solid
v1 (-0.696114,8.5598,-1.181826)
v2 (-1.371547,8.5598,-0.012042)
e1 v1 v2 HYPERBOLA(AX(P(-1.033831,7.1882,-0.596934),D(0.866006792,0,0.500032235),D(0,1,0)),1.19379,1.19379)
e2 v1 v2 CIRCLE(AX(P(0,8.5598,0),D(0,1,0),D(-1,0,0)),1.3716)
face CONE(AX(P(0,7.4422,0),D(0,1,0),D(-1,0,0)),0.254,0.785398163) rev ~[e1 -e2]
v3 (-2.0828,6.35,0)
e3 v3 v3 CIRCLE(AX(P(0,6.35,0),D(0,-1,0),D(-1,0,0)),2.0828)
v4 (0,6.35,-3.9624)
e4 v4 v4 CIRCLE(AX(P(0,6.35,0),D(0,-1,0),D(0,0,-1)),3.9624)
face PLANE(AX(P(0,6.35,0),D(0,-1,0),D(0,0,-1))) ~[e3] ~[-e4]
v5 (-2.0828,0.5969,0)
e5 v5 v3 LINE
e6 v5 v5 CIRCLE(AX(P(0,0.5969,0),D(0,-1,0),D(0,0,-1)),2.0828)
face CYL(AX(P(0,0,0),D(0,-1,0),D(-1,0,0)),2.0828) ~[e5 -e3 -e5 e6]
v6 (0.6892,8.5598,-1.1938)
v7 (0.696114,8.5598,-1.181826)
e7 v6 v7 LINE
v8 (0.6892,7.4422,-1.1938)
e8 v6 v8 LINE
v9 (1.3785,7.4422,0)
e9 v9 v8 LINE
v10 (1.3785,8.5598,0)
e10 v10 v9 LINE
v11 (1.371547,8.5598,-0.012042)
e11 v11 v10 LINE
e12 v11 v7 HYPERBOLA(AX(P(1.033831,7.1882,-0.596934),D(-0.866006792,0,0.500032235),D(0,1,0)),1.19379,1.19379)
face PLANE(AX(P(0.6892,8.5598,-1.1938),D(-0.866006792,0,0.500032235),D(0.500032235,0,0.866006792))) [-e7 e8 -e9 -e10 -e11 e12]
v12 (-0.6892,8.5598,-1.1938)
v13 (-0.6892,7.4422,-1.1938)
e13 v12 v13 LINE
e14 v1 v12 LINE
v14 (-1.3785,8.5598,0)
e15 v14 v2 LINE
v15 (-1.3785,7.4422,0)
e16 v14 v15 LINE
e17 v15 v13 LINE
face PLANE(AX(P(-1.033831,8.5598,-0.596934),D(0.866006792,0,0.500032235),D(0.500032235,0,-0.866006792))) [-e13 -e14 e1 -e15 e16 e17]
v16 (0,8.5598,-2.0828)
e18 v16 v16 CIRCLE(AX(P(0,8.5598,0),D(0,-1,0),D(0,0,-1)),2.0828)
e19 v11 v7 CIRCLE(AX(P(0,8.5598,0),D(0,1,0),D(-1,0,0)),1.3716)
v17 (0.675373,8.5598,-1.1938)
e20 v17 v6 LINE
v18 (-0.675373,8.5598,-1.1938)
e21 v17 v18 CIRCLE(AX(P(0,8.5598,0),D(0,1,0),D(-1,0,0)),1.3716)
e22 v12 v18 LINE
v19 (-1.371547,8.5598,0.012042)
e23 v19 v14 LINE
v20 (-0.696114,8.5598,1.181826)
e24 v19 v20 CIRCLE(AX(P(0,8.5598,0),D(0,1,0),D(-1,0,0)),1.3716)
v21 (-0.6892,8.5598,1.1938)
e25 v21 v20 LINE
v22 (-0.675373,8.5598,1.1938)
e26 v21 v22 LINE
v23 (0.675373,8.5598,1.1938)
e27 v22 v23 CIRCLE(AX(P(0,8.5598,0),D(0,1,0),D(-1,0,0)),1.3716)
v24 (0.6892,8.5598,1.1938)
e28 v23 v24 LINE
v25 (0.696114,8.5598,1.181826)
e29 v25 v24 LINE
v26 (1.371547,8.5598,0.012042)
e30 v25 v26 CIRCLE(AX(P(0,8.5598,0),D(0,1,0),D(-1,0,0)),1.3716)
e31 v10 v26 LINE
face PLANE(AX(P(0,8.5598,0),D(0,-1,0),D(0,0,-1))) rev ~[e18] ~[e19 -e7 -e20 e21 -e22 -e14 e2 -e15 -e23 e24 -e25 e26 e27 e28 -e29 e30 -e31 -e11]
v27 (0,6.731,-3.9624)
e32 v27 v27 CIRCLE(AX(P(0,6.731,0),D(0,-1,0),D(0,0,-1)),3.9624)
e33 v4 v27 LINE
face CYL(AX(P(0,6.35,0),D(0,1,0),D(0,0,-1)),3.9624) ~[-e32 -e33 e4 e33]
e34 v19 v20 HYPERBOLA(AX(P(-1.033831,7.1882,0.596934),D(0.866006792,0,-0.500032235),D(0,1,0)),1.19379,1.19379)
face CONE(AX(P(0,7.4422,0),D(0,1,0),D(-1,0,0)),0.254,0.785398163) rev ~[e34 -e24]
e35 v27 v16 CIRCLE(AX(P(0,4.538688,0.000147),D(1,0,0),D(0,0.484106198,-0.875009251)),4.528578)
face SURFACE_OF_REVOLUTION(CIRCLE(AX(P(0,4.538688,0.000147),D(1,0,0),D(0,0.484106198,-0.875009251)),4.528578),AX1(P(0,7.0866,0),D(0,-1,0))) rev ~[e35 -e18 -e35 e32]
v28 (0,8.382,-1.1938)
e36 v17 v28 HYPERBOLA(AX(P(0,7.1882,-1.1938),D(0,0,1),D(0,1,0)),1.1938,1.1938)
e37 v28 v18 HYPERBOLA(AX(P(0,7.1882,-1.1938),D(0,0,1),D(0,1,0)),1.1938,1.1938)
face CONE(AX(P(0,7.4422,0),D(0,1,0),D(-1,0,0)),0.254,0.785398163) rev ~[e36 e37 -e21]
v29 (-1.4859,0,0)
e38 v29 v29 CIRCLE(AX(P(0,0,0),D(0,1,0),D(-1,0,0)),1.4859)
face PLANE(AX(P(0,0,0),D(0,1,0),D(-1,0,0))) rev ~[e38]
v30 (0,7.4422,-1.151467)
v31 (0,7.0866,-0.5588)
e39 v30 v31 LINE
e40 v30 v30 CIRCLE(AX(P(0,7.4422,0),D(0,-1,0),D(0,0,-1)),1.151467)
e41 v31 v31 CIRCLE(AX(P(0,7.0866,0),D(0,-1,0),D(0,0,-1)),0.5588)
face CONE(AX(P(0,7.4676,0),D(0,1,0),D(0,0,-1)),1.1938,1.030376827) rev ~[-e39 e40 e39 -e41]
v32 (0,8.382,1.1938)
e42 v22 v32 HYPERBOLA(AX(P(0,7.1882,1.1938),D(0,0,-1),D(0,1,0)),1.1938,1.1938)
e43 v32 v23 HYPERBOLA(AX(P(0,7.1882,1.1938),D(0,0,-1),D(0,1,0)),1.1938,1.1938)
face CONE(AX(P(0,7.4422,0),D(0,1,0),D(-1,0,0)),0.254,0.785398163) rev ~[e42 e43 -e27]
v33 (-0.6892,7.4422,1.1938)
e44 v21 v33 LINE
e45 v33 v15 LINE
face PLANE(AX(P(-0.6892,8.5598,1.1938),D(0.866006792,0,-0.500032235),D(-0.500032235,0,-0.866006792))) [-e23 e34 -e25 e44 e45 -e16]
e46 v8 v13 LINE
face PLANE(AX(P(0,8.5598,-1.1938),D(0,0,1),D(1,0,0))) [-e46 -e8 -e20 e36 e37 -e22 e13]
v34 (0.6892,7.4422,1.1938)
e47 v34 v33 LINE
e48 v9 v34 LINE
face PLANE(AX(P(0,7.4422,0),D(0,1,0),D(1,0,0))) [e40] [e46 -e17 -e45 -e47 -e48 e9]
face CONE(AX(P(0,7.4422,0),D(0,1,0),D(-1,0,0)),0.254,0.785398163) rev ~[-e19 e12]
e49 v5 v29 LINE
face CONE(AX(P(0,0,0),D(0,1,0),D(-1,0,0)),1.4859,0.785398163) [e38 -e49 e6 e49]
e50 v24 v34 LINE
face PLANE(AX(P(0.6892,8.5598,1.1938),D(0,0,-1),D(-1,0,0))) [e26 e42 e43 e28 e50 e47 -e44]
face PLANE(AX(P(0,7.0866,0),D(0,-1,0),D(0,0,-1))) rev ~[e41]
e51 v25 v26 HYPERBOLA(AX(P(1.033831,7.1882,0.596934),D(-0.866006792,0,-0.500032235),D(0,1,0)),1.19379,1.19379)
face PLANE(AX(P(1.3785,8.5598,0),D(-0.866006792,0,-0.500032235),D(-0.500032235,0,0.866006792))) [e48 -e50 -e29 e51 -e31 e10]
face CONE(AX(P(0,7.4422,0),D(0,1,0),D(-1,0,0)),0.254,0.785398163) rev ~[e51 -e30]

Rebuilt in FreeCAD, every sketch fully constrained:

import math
import FreeCAD as App
import Part
import Sketcher
Q = App.Units.Quantity

doc = App.newDocument("Part")
params = doc.addObject("Spreadsheet::Sheet", "Params")
for row, (alias, value) in enumerate([
    ("sketch1_diameter", "0.164 in"),
    ("pad1_length", "0.25 in"),
    ("sketch2_width", "0.015 in"),
    ("sketch2_width2", "0.029 in"),
    ("sketch2_height", "0.156 in"),
    ("sketch2_height2", "0.022 in"),
    ("revolution_angle", "360 deg"),
    ("pocket1_length", "0.044 in"),
    ("sketch4_width", "0.044 in"),
    ("groove_angle", "360 deg"),
    ("groove2_angle", "360 deg"),
], start=1):
    params.set(f"A{row}", alias)
    params.set(f"B{row}", "=" + value)
    params.setAlias(f"B{row}", alias)

body = doc.addObject("PartDesign::Body", "Body")

# Sketch on XZ plane
sketch1 = body.newObject("Sketcher::SketchObject", "Sketch")
sketch1.AttachmentSupport = (doc.getObject("XZ_Plane"), [""])
sketch1.MapMode = "FlatFace"
sketch1.addGeometry(Part.Circle(App.Vector(0, 0, 0), App.Vector(0, 0, 1), 2.0828), False)
sketch1.addConstraint([
    Sketcher.Constraint("Coincident", 0, 3, -1, 1),
    Sketcher.Constraint("Diameter", 0, Q("0.164 in")),
])
sketch1.setExpression("Constraints[1]", "Params.sketch1_diameter")
pad1 = body.newObject("PartDesign::Pad", "Pad")
pad1.Profile = sketch1
pad1.setExpression("Length", "Params.pad1_length")
pad1.Reversed = True

# Sketch on YZ plane
sketch2 = body.newObject("Sketcher::SketchObject", "Sketch001")
sketch2.AttachmentSupport = (doc.getObject("YZ_Plane"), [""])
sketch2.MapMode = "FlatFace"
sketch2.addGeometry([
    Part.LineSegment(App.Vector(6.35, 0, 0), App.Vector(6.35, -3.9624, 0)),  # 0
    Part.LineSegment(App.Vector(6.35, -3.9624, 0), App.Vector(6.731, -3.9624, 0)),  # 1
    Part.ArcOfCircle(Part.Circle(App.Vector(4.5388, 0, 0), App.Vector(0, 0, 1), 4.528394), math.radians(-61.046414), math.radians(-27.38328)),  # 2
    Part.LineSegment(App.Vector(8.5598, -2.0828, 0), App.Vector(8.5598, -1.1938, 0)),  # 3
    Part.LineSegment(App.Vector(8.5598, -1.1938, 0), App.Vector(7.4676, -1.1938, 0)),  # 4
    Part.LineSegment(App.Vector(7.4676, -1.1938, 0), App.Vector(7.0866, -0.5588, 0)),  # 5
    Part.LineSegment(App.Vector(7.0866, -0.5588, 0), App.Vector(7.0866, 0, 0)),  # 6
    Part.LineSegment(App.Vector(7.0866, 0, 0), App.Vector(6.35, 0, 0)),  # 7
], False)
sketch2.addConstraint([
    Sketcher.Constraint("Coincident", 0, 2, 1, 1),
    Sketcher.Constraint("Coincident", 1, 2, 2, 1),
    Sketcher.Constraint("Coincident", 2, 2, 3, 1),
    Sketcher.Constraint("Coincident", 3, 2, 4, 1),
    Sketcher.Constraint("Coincident", 4, 2, 5, 1),
    Sketcher.Constraint("Coincident", 5, 2, 6, 1),
    Sketcher.Constraint("Coincident", 6, 2, 7, 1),
    Sketcher.Constraint("Coincident", 7, 2, 0, 1),
    Sketcher.Constraint("Vertical", 0),
    Sketcher.Constraint("Horizontal", 1),
    Sketcher.Constraint("Vertical", 3),
    Sketcher.Constraint("Horizontal", 4),
    Sketcher.Constraint("Vertical", 6),
    Sketcher.Constraint("Horizontal", 7),
    Sketcher.Constraint("PointOnObject", 2, 3, -1),
    Sketcher.Constraint("PointOnObject", 6, 2, -1),
    Sketcher.Constraint("DistanceX", 1, 1, 1, 2, Q("0.015 in")),
    Sketcher.Constraint("DistanceX", 7, 2, 7, 1, Q("0.029 in")),
    Sketcher.Constraint("DistanceY", 0, 2, 0, 1, Q("0.156 in")),
    Sketcher.Constraint("DistanceY", 6, 1, 6, 2, Q("0.022 in")),
    Sketcher.Constraint("DistanceY", 2, 2, -1, 1, Q("0.082 in")),
    Sketcher.Constraint("DistanceY", 3, 2, -1, 1, Q("0.047 in")),
    Sketcher.Constraint("DistanceX", 0, 2, 2, 2, Q("0.087 in")),
    Sketcher.Constraint("DistanceX", 1, 2, 4, 2, Q("0.029 in")),
    Sketcher.Constraint("DistanceX", -1, 1, 0, 2, Q("0.25 in")),
])
sketch2.setExpression("Constraints[16]", "Params.sketch2_width")
sketch2.setExpression("Constraints[17]", "Params.sketch2_width2")
sketch2.setExpression("Constraints[18]", "Params.sketch2_height")
sketch2.setExpression("Constraints[19]", "Params.sketch2_height2")
revolution = body.newObject("PartDesign::Revolution", "Revolution")
revolution.Profile = sketch2
revolution.ReferenceAxis = (sketch2, ["H_Axis"])
revolution.setExpression("Angle", "Params.revolution_angle")

# Sketch on XZ plane
sketch3 = body.newObject("Sketcher::SketchObject", "Sketch002")
sketch3.AttachmentSupport = (doc.getObject("XZ_Plane"), [""])
sketch3.MapMode = "FlatFace"
sketch3.AttachmentOffset = App.Placement(App.Vector(0, 0, -0.337 * 25.4), App.Rotation())
sketch3.addGeometry([
    Part.LineSegment(App.Vector(0.6892, -1.1938, 0), App.Vector(-0.6892, -1.1938, 0)),  # 0
    Part.LineSegment(App.Vector(-0.6892, -1.1938, 0), App.Vector(-1.3785, 0, 0)),  # 1
    Part.LineSegment(App.Vector(-1.3785, 0, 0), App.Vector(-0.6892, 1.1938, 0)),  # 2
    Part.LineSegment(App.Vector(-0.6892, 1.1938, 0), App.Vector(0.6892, 1.1938, 0)),  # 3
    Part.LineSegment(App.Vector(0.6892, 1.1938, 0), App.Vector(1.3785, 0, 0)),  # 4
    Part.LineSegment(App.Vector(1.3785, 0, 0), App.Vector(0.6892, -1.1938, 0)),  # 5
], False)
sketch3.addConstraint([
    Sketcher.Constraint("Coincident", 0, 2, 1, 1),
    Sketcher.Constraint("Coincident", 1, 2, 2, 1),
    Sketcher.Constraint("Coincident", 2, 2, 3, 1),
    Sketcher.Constraint("Coincident", 3, 2, 4, 1),
    Sketcher.Constraint("Coincident", 4, 2, 5, 1),
    Sketcher.Constraint("Coincident", 5, 2, 0, 1),
    Sketcher.Constraint("Horizontal", 0),
    Sketcher.Constraint("Horizontal", 3),
    Sketcher.Constraint("Symmetric", 0, 2, 3, 2, -1, 1),
    Sketcher.Constraint("Symmetric", 1, 2, 4, 2, -1, 1),
    Sketcher.Constraint("PointOnObject", 1, 2, -1),
    Sketcher.Constraint("Parallel", 2, 5),
    Sketcher.Constraint("Vertical", 0, 2, 2, 2),
    Sketcher.Constraint("DistanceY", 0, 2, -1, 1, Q("0.047 in")),
    Sketcher.Constraint("DistanceX", 0, 2, 0, 1, 1.3784),
    Sketcher.Constraint("DistanceX", 1, 2, 3, 2, Q("0.0814 in")),
])
pocket1 = body.newObject("PartDesign::Pocket", "Pocket")
pocket1.Profile = sketch3
pocket1.setExpression("Length", "Params.pocket1_length")
pocket1.Reversed = True

# Sketch on XY plane
sketch4 = body.newObject("Sketcher::SketchObject", "Sketch003")
sketch4.AttachmentSupport = (doc.getObject("XY_Plane"), [""])
sketch4.MapMode = "FlatFace"
sketch4.addGeometry([
    Part.LineSegment(App.Vector(-1.3716, 8.5598, 0), App.Vector(-0.254, 7.4422, 0)),
    Part.LineSegment(App.Vector(-0.254, 7.4422, 0), App.Vector(-0.254, 8.5598, 0)),
    Part.LineSegment(App.Vector(-0.254, 8.5598, 0), App.Vector(-1.3716, 8.5598, 0)),
], False)
sketch4.addConstraint([
    Sketcher.Constraint("Coincident", 0, 2, 1, 1),
    Sketcher.Constraint("Coincident", 1, 2, 2, 1),
    Sketcher.Constraint("Coincident", 2, 2, 0, 1),
    Sketcher.Constraint("Vertical", 1),
    Sketcher.Constraint("Horizontal", 2),
    Sketcher.Constraint("Equal", 2, 1),
    Sketcher.Constraint("DistanceX", 2, 2, -1, 1, Q("0.054 in")),
    Sketcher.Constraint("DistanceX", 2, 2, 2, 1, Q("0.044 in")),
    Sketcher.Constraint("DistanceY", -1, 1, 0, 2, Q("0.293 in")),
])
sketch4.setExpression("Constraints[7]", "Params.sketch4_width")
groove = body.newObject("PartDesign::Groove", "Groove")
groove.Profile = sketch4
groove.ReferenceAxis = (sketch4, ["V_Axis"])
groove.setExpression("Angle", "Params.groove_angle")

# Sketch on XY plane
sketch5 = body.newObject("Sketcher::SketchObject", "Sketch004")
sketch5.AttachmentSupport = (doc.getObject("XY_Plane"), [""])
sketch5.MapMode = "FlatFace"
sketch5.addGeometry([
    Part.LineSegment(App.Vector(-1.4859, -1.2188, 0), App.Vector(-1.4859, 0, 0)),
    Part.LineSegment(App.Vector(-1.4859, 0, 0), App.Vector(-2.4948, 1.0089, 0)),
    Part.LineSegment(App.Vector(-2.4948, 1.0089, 0), App.Vector(-2.9651, -1.2188, 0)),
    Part.LineSegment(App.Vector(-2.9651, -1.2188, 0), App.Vector(-1.4859, -1.2188, 0)),
], False)
sketch5.addConstraint([
    Sketcher.Constraint("Coincident", 0, 2, 1, 1),
    Sketcher.Constraint("Coincident", 1, 2, 2, 1),
    Sketcher.Constraint("Coincident", 2, 2, 3, 1),
    Sketcher.Constraint("Coincident", 3, 2, 0, 1),
    Sketcher.Constraint("Vertical", 0),
    Sketcher.Constraint("Horizontal", 3),
    Sketcher.Constraint("PointOnObject", 0, 2, -1),
    Sketcher.Constraint("Angle", 1, Q("135 deg")),
    Sketcher.Constraint("DistanceX", 0, 2, -1, 1, Q("0.0585 in")),
    Sketcher.Constraint("Angle", 2, Q("-101.921 deg")),
    Sketcher.Constraint("DistanceX", 3, 1, 3, 2, 1.4792),
    Sketcher.Constraint("DistanceY", 0, 1, 0, 2, 1.2188),
])
groove2 = body.newObject("PartDesign::Groove", "Groove001")
groove2.Profile = sketch5
groove2.ReferenceAxis = (sketch5, ["V_Axis"])
groove2.setExpression("Angle", "Params.groove2_angle")

doc.recompute()
